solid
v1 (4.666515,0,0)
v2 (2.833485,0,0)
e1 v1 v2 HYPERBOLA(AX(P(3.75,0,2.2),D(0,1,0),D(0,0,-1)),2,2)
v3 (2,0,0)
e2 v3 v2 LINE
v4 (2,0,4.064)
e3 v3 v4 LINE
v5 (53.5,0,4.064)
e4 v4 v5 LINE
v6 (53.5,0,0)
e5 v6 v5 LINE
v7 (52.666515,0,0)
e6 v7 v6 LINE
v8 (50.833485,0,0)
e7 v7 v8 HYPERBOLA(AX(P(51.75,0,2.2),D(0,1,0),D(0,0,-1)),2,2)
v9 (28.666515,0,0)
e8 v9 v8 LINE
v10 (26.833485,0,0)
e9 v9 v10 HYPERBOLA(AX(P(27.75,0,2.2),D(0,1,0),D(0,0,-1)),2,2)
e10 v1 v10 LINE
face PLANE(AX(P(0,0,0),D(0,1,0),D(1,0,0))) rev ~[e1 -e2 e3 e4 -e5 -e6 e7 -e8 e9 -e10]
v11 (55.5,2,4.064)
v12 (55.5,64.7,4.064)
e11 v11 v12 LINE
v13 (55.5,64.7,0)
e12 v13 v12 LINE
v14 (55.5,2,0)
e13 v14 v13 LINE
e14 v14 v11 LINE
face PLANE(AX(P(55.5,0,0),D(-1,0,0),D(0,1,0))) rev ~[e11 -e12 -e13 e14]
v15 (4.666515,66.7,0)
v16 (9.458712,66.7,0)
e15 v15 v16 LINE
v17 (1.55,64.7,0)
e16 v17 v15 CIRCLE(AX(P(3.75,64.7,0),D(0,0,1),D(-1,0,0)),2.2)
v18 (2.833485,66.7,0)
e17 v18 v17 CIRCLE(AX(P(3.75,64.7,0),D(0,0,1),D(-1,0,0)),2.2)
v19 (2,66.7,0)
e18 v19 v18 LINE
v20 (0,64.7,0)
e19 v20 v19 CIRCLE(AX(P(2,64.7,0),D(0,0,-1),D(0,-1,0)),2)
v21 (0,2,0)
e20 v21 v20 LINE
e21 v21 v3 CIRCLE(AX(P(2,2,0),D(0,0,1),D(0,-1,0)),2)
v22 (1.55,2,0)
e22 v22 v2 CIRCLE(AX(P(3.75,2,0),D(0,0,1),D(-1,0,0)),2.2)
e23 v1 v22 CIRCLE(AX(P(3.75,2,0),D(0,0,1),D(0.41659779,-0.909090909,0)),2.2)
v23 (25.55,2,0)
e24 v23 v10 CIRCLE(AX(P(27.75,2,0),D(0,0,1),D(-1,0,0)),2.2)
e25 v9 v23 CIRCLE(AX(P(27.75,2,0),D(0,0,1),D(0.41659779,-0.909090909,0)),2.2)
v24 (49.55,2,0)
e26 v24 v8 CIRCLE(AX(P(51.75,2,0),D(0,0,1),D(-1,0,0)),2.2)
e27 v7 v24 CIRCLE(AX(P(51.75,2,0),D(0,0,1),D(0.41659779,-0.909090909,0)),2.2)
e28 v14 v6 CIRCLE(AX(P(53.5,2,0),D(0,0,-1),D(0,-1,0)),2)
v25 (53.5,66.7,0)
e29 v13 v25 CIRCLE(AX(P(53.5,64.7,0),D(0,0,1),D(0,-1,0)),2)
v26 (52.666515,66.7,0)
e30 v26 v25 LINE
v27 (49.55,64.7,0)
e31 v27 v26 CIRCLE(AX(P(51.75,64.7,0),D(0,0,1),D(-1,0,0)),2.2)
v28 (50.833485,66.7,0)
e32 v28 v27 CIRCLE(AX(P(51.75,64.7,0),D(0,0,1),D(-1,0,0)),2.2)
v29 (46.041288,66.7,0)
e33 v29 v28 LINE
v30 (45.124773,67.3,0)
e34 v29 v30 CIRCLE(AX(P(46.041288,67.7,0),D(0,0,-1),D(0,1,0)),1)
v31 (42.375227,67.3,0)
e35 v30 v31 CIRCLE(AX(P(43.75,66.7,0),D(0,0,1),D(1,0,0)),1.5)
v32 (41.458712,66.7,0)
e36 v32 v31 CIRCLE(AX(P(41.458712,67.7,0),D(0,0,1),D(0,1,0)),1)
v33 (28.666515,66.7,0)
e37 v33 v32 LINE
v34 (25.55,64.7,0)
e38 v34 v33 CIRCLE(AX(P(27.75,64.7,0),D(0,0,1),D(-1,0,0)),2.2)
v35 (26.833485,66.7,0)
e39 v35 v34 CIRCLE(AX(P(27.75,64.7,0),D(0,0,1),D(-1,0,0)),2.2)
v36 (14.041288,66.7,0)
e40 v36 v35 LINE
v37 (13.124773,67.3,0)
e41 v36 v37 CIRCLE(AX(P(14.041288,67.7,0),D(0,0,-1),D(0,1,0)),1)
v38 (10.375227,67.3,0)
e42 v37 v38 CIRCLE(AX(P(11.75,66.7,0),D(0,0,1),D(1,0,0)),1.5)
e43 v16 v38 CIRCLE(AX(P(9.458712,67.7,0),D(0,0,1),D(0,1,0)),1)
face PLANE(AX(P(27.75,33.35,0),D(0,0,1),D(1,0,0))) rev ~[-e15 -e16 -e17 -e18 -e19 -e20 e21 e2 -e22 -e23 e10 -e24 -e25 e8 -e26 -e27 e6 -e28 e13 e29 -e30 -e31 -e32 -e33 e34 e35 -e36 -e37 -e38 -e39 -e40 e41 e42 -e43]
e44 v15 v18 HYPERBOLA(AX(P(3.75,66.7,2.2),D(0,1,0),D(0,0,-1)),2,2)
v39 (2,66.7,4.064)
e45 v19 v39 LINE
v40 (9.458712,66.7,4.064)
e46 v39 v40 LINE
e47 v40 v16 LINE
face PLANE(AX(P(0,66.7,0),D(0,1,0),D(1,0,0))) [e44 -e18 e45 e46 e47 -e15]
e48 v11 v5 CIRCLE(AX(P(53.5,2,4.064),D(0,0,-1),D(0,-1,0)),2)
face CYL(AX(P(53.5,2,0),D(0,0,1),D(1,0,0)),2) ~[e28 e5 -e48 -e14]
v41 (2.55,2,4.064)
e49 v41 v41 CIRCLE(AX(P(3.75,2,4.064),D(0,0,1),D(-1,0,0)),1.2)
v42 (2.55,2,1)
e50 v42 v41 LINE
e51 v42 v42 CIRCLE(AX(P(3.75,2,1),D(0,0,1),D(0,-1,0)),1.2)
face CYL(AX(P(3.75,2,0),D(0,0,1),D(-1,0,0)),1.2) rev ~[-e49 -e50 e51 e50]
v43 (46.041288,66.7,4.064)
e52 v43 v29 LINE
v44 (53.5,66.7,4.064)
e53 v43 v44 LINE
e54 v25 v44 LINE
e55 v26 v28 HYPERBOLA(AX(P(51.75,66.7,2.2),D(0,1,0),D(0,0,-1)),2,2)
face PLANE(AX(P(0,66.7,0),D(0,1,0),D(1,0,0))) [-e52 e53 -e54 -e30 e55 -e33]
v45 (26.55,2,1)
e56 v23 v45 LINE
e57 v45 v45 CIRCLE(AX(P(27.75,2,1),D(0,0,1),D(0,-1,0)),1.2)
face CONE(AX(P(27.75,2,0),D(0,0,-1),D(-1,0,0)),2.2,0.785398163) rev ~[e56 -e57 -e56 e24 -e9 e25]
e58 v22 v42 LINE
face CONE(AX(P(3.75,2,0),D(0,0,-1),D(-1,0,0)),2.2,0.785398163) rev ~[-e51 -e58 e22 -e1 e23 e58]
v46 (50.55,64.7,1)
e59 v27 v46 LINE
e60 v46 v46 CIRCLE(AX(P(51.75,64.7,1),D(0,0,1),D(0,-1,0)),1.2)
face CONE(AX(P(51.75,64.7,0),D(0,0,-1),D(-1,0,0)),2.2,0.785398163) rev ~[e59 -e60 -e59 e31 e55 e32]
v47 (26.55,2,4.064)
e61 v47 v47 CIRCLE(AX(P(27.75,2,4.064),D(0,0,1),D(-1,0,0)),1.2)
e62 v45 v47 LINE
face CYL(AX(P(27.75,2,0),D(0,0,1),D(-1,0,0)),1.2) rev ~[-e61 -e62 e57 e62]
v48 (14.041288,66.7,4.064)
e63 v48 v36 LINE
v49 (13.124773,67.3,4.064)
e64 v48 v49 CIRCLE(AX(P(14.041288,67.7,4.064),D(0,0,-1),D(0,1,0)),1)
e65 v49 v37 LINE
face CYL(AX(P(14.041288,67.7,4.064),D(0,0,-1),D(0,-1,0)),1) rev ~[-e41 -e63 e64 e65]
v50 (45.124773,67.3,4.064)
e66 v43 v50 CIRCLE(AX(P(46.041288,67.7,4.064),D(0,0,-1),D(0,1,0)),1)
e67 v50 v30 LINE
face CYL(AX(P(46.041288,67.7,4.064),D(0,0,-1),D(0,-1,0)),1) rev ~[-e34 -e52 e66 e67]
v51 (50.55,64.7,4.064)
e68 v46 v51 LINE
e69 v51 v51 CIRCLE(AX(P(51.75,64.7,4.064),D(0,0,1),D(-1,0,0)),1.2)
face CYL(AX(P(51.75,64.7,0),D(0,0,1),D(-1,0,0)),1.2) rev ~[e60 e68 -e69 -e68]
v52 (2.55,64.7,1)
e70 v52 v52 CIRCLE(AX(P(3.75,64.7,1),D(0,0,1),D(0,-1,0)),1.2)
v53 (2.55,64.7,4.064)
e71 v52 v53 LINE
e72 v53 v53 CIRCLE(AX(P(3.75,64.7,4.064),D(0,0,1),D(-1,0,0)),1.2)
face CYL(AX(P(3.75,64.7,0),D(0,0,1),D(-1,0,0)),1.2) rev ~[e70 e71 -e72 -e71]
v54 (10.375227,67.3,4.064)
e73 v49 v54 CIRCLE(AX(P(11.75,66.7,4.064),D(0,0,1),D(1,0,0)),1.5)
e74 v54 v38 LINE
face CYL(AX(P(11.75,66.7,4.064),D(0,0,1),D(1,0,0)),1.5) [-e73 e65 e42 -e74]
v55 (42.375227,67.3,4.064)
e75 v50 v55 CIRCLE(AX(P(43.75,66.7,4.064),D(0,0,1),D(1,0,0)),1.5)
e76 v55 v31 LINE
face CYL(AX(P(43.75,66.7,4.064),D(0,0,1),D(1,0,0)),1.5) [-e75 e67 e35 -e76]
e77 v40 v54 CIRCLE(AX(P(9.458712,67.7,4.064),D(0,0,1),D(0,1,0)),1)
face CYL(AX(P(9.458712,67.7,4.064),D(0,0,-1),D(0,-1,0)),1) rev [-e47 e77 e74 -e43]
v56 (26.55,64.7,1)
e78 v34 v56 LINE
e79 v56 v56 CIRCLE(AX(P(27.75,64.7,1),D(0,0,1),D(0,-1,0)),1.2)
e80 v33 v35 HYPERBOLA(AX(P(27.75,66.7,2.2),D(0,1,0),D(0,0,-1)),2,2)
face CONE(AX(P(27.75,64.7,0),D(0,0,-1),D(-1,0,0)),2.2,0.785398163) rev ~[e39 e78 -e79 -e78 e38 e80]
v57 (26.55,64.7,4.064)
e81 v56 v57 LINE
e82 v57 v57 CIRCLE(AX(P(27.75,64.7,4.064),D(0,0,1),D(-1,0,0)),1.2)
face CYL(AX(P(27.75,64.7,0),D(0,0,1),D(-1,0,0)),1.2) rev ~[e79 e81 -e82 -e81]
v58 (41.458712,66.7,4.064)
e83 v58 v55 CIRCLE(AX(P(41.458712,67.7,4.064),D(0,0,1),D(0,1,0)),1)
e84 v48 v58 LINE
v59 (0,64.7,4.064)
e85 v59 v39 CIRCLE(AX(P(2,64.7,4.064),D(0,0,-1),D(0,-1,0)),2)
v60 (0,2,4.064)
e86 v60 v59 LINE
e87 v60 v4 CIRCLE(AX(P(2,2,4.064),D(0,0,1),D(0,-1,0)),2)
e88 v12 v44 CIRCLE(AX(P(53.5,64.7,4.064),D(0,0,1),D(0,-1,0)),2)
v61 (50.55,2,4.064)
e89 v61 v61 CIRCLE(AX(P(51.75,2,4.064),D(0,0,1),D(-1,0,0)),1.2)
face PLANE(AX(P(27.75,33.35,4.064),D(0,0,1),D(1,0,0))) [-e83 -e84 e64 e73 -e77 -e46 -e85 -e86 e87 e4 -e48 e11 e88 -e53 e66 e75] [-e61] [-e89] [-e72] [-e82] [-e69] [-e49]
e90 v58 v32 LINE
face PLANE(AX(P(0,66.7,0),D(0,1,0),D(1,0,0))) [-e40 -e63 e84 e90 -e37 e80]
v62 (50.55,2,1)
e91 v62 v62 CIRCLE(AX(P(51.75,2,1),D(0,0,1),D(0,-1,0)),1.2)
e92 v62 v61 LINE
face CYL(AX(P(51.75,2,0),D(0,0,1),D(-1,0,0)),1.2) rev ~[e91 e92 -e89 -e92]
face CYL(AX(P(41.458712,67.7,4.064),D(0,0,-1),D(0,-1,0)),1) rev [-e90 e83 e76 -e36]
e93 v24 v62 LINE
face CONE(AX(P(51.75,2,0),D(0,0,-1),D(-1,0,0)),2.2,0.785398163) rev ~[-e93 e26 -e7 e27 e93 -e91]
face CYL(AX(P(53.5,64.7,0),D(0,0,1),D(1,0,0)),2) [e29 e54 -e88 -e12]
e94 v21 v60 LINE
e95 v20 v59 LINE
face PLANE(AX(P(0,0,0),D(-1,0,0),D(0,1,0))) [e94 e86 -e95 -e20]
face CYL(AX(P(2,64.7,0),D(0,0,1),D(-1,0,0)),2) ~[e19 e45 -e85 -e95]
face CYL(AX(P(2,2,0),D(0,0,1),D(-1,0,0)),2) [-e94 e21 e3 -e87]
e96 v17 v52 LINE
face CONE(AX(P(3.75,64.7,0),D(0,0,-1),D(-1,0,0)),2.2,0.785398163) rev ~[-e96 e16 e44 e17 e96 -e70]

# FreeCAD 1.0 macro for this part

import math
import FreeCAD as App
import Part
import Sketcher

V = App.Vector


def edges_at(feature, points):
    """Names of the edges that pass closest to the given points."""
    edges = feature.Shape.Edges
    near = lambda p: min(range(len(edges)), key=lambda i: edges[i].distToShape(Part.Vertex(*p))[0])
    return sorted({f"Edge{near(p) + 1}" for p in points})

doc = App.newDocument("Part")
params = doc.addObject("Spreadsheet::Sheet", "Params")
for row, (alias, value) in enumerate([
    ("sketch1_width", "55.5 mm"),
    ("sketch1_height", "66.7 mm"),
    ("pad1_length", "4.064 mm"),
    ("sketch2_diameter", "2.4 mm"),
    ("hole_diameter", "2.4 mm"),
    ("hole_csink_diameter", "4.4 mm"),
    ("fillet_radius", "2 mm"),
    ("sketch3_radius", "1.5 mm"),
    ("pad2_length", "4.064 mm"),
    ("fillet2_radius", "1 mm"),
], start=1):
    params.set(f"A{row}", alias)
    params.set(f"B{row}", "=" + value)
    params.setAlias(f"B{row}", alias)

body = doc.addObject("PartDesign::Body", "Body")

# Sketch on XY plane
sketch1 = body.newObject("Sketcher::SketchObject", "Sketch")
sketch1.AttachmentSupport = (doc.getObject("XY_Plane"), [""])
sketch1.MapMode = "FlatFace"
sketch1.addGeometry([
    Part.LineSegment(V(0, 66.7, 0), V(0, 0, 0)),
    Part.LineSegment(V(0, 0, 0), V(55.5, 0, 0)),
    Part.LineSegment(V(55.5, 0, 0), V(55.5, 66.7, 0)),
    Part.LineSegment(V(55.5, 66.7, 0), V(0, 66.7, 0)),
], False)
sketch1.addConstraint([
    Sketcher.Constraint("Coincident", 0, 2, 1, 1),
    Sketcher.Constraint("Coincident", 1, 2, 2, 1),
    Sketcher.Constraint("Coincident", 2, 2, 3, 1),
    Sketcher.Constraint("Coincident", 3, 2, 0, 1),
    Sketcher.Constraint("Vertical", 0),
    Sketcher.Constraint("Horizontal", 1),
    Sketcher.Constraint("Vertical", 2),
    Sketcher.Constraint("Horizontal", 3),
    Sketcher.Constraint("Coincident", 0, 2, -1, 1),
    Sketcher.Constraint("DistanceX", 1, 1, 1, 2, 55.5),
    Sketcher.Constraint("DistanceY", 0, 2, 0, 1, 66.7),
])
sketch1.setExpression("Constraints[9]", "Params.sketch1_width")
sketch1.setExpression("Constraints[10]", "Params.sketch1_height")
pad1 = body.newObject("PartDesign::Pad", "Pad")
pad1.Profile = sketch1
pad1.setExpression("Length", "Params.pad1_length")

# Sketch on XY plane
sketch2 = body.newObject("Sketcher::SketchObject", "Sketch001")
sketch2.AttachmentSupport = (doc.getObject("XY_Plane"), [""])
sketch2.MapMode = "FlatFace"
sketch2.addGeometry([
    Part.Circle(V(3.75, 64.7, 0), V(0, 0, 1), 1.2),  # 0
    Part.Circle(V(27.75, 64.7, 0), V(0, 0, 1), 1.2),  # 1
    Part.Circle(V(51.75, 64.7, 0), V(0, 0, 1), 1.2),  # 2
    Part.Circle(V(3.75, 2, 0), V(0, 0, 1), 1.2),  # 3
    Part.Circle(V(27.75, 2, 0), V(0, 0, 1), 1.2),  # 4
    Part.Circle(V(51.75, 2, 0), V(0, 0, 1), 1.2),  # 5
], False)
sketch2.addConstraint([
    Sketcher.Constraint("Equal", 0, 1),
    Sketcher.Constraint("Equal", 1, 2),
    Sketcher.Constraint("Equal", 2, 3),
    Sketcher.Constraint("Equal", 3, 4),
    Sketcher.Constraint("Equal", 4, 5),
    Sketcher.Constraint("Horizontal", 0, 3, 1, 3),
    Sketcher.Constraint("Horizontal", 1, 3, 2, 3),
    Sketcher.Constraint("Horizontal", 3, 3, 4, 3),
    Sketcher.Constraint("Horizontal", 4, 3, 5, 3),
    Sketcher.Constraint("Vertical", 0, 3, 3, 3),
    Sketcher.Constraint("Vertical", 1, 3, 4, 3),
    Sketcher.Constraint("Vertical", 2, 3, 5, 3),
    Sketcher.Constraint("Diameter", 0, 2.4),
    Sketcher.Constraint("DistanceY", -1, 1, 3, 3, 2.0),
    Sketcher.Constraint("DistanceX", 0, 3, 1, 3, 24.0),
    Sketcher.Constraint("DistanceX", 1, 3, 2, 3, 24.0),
    Sketcher.Constraint("DistanceY", -1, 1, 0, 3, 64.7),
    Sketcher.Constraint("DistanceX", -1, 1, 0, 3, 3.75),
])
sketch2.setExpression("Constraints[12]", "Params.sketch2_diameter")
doc.recompute()
hole = body.newObject("PartDesign::Hole", "Hole")
hole.Profile = sketch2
hole.ThreadType = "None"
hole.setExpression("Diameter", "Params.hole_diameter")
hole.DepthType = "ThroughAll"
hole.HoleCutType = "Countersink"
hole.setExpression("HoleCutDiameter", "Params.hole_csink_diameter")
hole.HoleCutCountersinkAngle = 90
hole.Reversed = True
doc.recompute()

fillet = body.newObject("PartDesign::Fillet", "Fillet")
fillet.Base = (hole, edges_at(hole, [
    (0, 66.7, 2.032),
    (55.5, 66.7, 2.032),
    (55.5, 0, 2.032),
    (0, 0, 2.032),
]))
fillet.setExpression("Radius", "Params.fillet_radius")

# Sketch on XY plane
sketch3 = body.newObject("Sketcher::SketchObject", "Sketch002")
sketch3.AttachmentSupport = (doc.getObject("XY_Plane"), [""])
sketch3.MapMode = "FlatFace"
sketch3.AttachmentOffset = App.Placement(V(0, 0, 4.064), App.Rotation())
sketch3.addGeometry([
    Part.LineSegment(V(10.25, 66.7, 0), V(13.25, 66.7, 0)),
    Part.ArcOfCircle(Part.Circle(V(11.75, 66.7, 0), V(0, 0, 1), 1.5), math.radians(0), math.radians(180)),
    Part.LineSegment(V(42.25, 66.7, 0), V(45.25, 66.7, 0)),
    Part.ArcOfCircle(Part.Circle(V(43.75, 66.7, 0), V(0, 0, 1), 1.5), math.radians(0), math.radians(180)),
], False)
sketch3.addConstraint([
    Sketcher.Constraint("Coincident", 0, 1, 1, 2),
    Sketcher.Constraint("Coincident", 1, 1, 0, 2),
    Sketcher.Constraint("Coincident", 2, 1, 3, 2),
    Sketcher.Constraint("Coincident", 3, 1, 2, 2),
    Sketcher.Constraint("Horizontal", 0),
    Sketcher.Constraint("Horizontal", 2),
    Sketcher.Constraint("Equal", 1, 3),
    Sketcher.Constraint("Horizontal", 1, 3, 3, 3),
    Sketcher.Constraint("Horizontal", 3, 3, 0, 1),
    Sketcher.Constraint("Horizontal", 1, 1, 2, 1),
    Sketcher.Constraint("Radius", 1, 1.5),
    Sketcher.Constraint("DistanceX", 1, 3, 3, 3, 32.0),
    Sketcher.Constraint("DistanceY", -1, 1, 1, 3, 66.7),
    Sketcher.Constraint("DistanceX", -1, 1, 1, 3, 11.75),
])
sketch3.setExpression("Constraints[10]", "Params.sketch3_radius")
pad2 = body.newObject("PartDesign::Pad", "Pad001")
pad2.Profile = sketch3
pad2.setExpression("Length", "Params.pad2_length")
pad2.Reversed = True
doc.recompute()

fillet2 = body.newObject("PartDesign::Fillet", "Fillet001")
fillet2.Base = (pad2, edges_at(pad2, [
    (10.25, 66.7, 2.032),
    (13.25, 66.7, 2.032),
    (42.25, 66.7, 2.032),
    (45.25, 66.7, 2.032),
]))
fillet2.setExpression("Radius", "Params.fillet2_radius")

doc.recompute()
